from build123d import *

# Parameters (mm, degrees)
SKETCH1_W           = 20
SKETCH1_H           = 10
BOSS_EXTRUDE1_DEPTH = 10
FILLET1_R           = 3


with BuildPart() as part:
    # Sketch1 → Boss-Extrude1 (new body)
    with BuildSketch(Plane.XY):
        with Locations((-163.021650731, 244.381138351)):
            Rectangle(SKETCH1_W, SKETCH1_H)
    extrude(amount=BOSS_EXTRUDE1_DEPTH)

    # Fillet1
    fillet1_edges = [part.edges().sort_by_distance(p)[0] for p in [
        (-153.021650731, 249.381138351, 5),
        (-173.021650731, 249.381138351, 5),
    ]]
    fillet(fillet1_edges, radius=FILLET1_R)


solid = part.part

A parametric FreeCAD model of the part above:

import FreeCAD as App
import Part
import Sketcher
from FreeCAD import Vector
Q = App.Units.Quantity


def edges_at(feature, points):
    """Names of the edges that pass closest to the given points."""
    edges = feature.Shape.Edges
    near = lambda p: min(range(len(edges)), key=lambda i: edges[i].distToShape(Part.Vertex(*p))[0])
    return sorted({f"Edge{near(p) + 1}" for p in points})


def add_polygon(sketch, points):
    """Adds a closed chain of lines whose ends are joined by coincident constraints."""
    first, n = sketch.GeometryCount, len(points)
    for a, b in zip(points, points[1:] + points[:1]):
        sketch.addGeometry(Part.LineSegment(App.Vector(*a, 0), App.Vector(*b, 0)), False)
    for i in range(n):
        sketch.addConstraint(Sketcher.Constraint("Coincident", first + i, 2, first + (i + 1) % n, 1))

doc = App.newDocument("Part")
body = doc.addObject("PartDesign::Body", "Body")

# Sketch on XY plane
sketch1 = body.newObject("Sketcher::SketchObject", "Sketch")
sketch1.AttachmentSupport = (doc.getObject("XY_Plane"), [""])
sketch1.MapMode = "FlatFace"
add_polygon(sketch1, [(-173, 249), (-173, 239), (-153, 239), (-153, 249)])  # lines 0-3
sketch1.addConstraint([
    Sketcher.Constraint("Vertical", 0),
    Sketcher.Constraint("Horizontal", 1),
    Sketcher.Constraint("Vertical", 2),
    Sketcher.Constraint("Horizontal", 3),
    Sketcher.Constraint("DistanceX", 1, 1, 1, 2, Q("20 mm")),
    Sketcher.Constraint("DistanceY", 0, 2, 0, 1, Q("10 mm")),
    Sketcher.Constraint("DistanceX", 0, 2, -1, 1, Q("173.021651 mm")),
    Sketcher.Constraint("DistanceY", -1, 1, 0, 2, Q("239.381138 mm")),
])
pad1 = body.newObject("PartDesign::Pad", "Pad")
pad1.Profile = sketch1
pad1.Length = 10
doc.recompute()

fillet = body.newObject("PartDesign::Fillet", "Fillet")
fillet.Base = (pad1, edges_at(pad1, [(-153.022, 249.381, 5), (-173.022, 249.381, 5)]))
fillet.Radius = 3

doc.recompute()
